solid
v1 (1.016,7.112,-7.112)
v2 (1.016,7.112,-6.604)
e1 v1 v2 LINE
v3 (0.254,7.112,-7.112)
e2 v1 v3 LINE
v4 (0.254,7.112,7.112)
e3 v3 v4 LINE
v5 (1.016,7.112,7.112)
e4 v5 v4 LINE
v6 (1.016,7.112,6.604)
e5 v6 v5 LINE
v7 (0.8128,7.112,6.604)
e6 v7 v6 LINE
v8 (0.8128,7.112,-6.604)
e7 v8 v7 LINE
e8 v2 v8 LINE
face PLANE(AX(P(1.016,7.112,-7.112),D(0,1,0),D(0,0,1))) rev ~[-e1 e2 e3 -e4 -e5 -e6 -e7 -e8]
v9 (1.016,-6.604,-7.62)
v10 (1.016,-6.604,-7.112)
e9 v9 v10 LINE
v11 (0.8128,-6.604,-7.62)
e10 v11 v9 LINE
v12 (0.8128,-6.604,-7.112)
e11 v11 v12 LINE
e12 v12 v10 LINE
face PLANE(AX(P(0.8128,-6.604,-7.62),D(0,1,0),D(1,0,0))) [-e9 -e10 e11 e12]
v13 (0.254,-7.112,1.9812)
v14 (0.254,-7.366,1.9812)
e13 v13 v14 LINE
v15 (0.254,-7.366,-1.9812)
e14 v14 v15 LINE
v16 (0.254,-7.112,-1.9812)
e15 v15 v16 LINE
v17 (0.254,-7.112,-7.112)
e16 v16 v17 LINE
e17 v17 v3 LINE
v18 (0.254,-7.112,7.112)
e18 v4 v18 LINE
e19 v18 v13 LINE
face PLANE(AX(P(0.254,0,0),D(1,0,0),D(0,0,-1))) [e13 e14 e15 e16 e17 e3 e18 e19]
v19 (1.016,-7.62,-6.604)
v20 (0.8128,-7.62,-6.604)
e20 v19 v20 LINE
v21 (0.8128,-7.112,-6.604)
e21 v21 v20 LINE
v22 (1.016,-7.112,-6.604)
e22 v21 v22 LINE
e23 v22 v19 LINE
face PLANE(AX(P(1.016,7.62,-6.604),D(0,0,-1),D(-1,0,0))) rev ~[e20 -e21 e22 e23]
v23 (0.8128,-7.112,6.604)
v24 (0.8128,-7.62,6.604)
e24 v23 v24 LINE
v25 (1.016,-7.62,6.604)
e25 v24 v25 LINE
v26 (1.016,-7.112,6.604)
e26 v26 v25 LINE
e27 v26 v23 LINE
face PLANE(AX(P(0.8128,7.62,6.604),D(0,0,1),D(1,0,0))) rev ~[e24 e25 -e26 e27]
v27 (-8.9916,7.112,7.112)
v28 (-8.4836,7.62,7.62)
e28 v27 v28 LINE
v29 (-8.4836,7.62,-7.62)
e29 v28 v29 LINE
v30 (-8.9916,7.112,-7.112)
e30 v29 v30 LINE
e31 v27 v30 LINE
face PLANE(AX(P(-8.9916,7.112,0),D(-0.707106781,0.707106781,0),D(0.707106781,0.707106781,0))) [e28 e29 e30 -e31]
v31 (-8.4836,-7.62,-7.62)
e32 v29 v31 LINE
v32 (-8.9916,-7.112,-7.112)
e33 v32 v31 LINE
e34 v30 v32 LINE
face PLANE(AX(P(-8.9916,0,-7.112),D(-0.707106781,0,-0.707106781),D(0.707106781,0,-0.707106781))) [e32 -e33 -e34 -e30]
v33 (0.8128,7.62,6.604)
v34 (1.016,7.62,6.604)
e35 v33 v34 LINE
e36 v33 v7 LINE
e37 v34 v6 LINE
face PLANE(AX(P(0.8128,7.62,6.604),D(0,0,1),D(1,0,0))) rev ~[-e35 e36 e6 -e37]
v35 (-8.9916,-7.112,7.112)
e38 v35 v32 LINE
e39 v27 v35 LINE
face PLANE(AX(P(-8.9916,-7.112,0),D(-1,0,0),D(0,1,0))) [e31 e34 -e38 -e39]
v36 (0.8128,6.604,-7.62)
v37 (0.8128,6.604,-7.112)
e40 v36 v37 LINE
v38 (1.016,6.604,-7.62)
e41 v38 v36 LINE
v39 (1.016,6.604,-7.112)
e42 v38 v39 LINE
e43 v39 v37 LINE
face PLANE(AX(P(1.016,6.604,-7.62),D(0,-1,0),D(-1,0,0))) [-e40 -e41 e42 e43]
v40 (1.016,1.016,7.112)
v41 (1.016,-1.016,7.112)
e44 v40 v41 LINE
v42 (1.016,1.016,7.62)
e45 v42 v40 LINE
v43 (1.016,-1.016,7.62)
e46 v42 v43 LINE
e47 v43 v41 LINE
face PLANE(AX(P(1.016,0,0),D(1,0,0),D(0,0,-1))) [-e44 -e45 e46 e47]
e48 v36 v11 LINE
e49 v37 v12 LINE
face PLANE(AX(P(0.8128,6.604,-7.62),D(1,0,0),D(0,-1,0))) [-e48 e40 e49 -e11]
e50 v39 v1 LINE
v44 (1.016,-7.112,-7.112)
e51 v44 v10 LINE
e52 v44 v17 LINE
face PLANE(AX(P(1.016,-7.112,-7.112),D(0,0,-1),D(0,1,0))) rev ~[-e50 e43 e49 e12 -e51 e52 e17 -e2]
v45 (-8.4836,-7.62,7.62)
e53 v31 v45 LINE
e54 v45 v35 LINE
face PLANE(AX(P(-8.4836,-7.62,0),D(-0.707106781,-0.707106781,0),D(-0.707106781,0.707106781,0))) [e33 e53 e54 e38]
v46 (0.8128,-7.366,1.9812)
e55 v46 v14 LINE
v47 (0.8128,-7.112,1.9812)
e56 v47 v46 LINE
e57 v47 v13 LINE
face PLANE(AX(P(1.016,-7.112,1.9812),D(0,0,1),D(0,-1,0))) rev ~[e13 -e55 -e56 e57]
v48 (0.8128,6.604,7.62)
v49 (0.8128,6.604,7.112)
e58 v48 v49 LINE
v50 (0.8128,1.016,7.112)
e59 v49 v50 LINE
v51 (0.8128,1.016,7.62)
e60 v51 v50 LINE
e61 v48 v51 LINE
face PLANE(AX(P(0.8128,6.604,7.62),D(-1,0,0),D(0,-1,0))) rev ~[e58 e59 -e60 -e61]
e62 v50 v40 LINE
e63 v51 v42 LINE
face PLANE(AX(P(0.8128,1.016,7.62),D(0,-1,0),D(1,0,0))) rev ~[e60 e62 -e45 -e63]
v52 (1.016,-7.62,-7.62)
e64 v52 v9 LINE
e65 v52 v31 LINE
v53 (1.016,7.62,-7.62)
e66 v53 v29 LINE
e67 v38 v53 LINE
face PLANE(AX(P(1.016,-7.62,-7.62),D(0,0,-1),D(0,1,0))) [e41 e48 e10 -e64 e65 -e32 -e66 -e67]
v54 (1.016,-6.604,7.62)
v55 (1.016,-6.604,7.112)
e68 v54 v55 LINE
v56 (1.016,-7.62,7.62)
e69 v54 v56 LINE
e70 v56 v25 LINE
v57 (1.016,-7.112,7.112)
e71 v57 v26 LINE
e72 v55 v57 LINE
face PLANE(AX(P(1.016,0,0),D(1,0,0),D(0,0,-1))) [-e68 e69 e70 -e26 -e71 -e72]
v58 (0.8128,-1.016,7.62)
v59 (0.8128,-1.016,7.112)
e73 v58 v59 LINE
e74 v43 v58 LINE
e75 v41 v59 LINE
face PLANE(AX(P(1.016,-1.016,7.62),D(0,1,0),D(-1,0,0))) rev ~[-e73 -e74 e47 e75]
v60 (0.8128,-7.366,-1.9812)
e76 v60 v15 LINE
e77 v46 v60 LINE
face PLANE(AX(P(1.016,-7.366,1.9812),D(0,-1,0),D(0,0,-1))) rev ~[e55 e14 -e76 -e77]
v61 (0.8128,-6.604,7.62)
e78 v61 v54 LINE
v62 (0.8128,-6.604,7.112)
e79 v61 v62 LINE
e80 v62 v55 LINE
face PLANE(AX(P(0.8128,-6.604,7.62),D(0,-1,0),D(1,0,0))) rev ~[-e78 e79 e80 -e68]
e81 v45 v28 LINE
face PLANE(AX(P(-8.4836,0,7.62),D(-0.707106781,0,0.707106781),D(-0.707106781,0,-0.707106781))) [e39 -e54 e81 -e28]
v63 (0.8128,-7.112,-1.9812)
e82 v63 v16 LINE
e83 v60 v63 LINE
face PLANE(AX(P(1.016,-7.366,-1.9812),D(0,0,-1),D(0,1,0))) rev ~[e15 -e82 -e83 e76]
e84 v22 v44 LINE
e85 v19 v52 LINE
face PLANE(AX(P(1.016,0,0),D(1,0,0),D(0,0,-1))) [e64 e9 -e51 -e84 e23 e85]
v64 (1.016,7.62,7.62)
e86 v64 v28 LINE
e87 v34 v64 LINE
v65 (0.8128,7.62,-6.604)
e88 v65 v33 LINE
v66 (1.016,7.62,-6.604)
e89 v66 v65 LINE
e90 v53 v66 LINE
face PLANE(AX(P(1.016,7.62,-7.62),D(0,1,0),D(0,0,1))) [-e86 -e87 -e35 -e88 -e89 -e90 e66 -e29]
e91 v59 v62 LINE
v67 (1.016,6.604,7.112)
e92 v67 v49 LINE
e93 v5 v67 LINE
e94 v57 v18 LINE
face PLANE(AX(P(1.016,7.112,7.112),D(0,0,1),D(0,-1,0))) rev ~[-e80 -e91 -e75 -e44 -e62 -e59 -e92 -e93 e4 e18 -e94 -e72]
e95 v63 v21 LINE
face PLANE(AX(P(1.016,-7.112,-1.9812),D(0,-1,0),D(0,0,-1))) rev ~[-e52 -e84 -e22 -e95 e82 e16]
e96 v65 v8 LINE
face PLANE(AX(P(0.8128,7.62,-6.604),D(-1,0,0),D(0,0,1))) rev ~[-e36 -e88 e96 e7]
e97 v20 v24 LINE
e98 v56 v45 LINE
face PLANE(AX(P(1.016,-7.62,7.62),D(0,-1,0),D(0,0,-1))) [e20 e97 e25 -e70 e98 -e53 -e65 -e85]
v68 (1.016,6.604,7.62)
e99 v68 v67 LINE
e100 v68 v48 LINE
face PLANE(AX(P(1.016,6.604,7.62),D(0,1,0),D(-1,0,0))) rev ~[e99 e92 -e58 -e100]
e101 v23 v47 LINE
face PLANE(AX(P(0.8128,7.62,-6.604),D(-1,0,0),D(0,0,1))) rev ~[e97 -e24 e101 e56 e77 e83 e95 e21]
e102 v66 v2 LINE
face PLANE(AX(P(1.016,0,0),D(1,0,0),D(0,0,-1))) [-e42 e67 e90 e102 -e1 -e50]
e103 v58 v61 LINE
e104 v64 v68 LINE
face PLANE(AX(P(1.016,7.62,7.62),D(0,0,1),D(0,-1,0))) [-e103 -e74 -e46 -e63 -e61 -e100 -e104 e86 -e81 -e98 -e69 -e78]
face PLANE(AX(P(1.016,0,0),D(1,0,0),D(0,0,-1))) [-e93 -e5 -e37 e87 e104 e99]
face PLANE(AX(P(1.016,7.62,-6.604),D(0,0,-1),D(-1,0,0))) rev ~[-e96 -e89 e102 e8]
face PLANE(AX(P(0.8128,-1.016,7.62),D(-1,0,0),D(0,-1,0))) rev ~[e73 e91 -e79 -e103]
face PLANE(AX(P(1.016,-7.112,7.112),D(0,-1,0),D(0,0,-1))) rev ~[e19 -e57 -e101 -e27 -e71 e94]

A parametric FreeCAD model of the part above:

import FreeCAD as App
import Part
import Sketcher

V = App.Vector
Q = App.Units.Quantity


def add_polygon(sketch, points):
    """Adds a closed chain of lines whose ends are joined by coincident constraints."""
    first, n = sketch.GeometryCount, len(points)
    for a, b in zip(points, points[1:] + points[:1]):
        sketch.addGeometry(Part.LineSegment(App.Vector(*a, 0), App.Vector(*b, 0)), False)
    for i in range(n):
        sketch.addConstraint(Sketcher.Constraint("Coincident", first + i, 2, first + (i + 1) % n, 1))

doc = App.newDocument("Part")
body = doc.addObject("PartDesign::Body", "Body")

sketch1 = body.newObject("Sketcher::SketchObject", "Sketch")
sketch1.AttachmentSupport = (doc.getObject("YZ_Plane"), [""])
sketch1.MapMode = "FlatFace"
sketch1.AttachmentOffset = App.Placement(V(0, 0, 0.04 * 25.4), App.Rotation())
add_polygon(sketch1, [(8, 8), (-8, 8), (-8, -8), (8, -8)])
sketch1.addConstraint([
    Sketcher.Constraint("Horizontal", 0),
    Sketcher.Constraint("Vertical", 1),
    Sketcher.Constraint("Horizontal", 2),
    Sketcher.Constraint("Vertical", 3),
    Sketcher.Constraint("Symmetric", 0, 2, 2, 2, -1, 1),
    Sketcher.Constraint("Equal", 2, 1),
    Sketcher.Constraint("DistanceX", 0, 2, 0, 1, Q("0.6 in")),
])
pad1 = body.newObject("PartDesign::Pad", "Pad")
pad1.Profile = sketch1
pad1.Length = Q("0.394 in")
pad1.Reversed = True

sketch2 = body.newObject("Sketcher::SketchObject", "Sketch001")
sketch2.AttachmentSupport = (doc.getObject("YZ_Plane"), [""])
sketch2.MapMode = "FlatFace"
sketch2.AttachmentOffset = App.Placement(V(0, 0, 0.04 * 25.4), App.Rotation())
add_polygon(sketch2, [(7.11, 7.11), (-7.11, 7.11), (-7.11, 1.98), (-7.37, 1.98), (-7.37, -1.98), (-7.11, -1.98), (-7.11, -7.11), (7.11, -7.11)])
sketch2.addConstraint([
    Sketcher.Constraint("Horizontal", 0),
    Sketcher.Constraint("Vertical", 1),
    Sketcher.Constraint("Horizontal", 2),
    Sketcher.Constraint("Vertical", 3),
    Sketcher.Constraint("Horizontal", 4),
    Sketcher.Constraint("Vertical", 5),
    Sketcher.Constraint("Horizontal", 6),
    Sketcher.Constraint("Vertical", 7),
    Sketcher.Constraint("Symmetric", 0, 2, 6, 2, -1, 1),
    Sketcher.Constraint("Symmetric", 1, 2, 4, 2, -1),
    Sketcher.Constraint("Equal", 6, 7),
    Sketcher.Constraint("DistanceX", 0, 2, 0, 1, Q("0.56 in")),
    Sketcher.Constraint("DistanceX", 2, 2, 2, 1, Q("0.01 in")),
    Sketcher.Constraint("DistanceY", 1, 2, 1, 1, Q("0.202 in")),
])
pocket1 = body.newObject("PartDesign::Pocket", "Pocket")
pocket1.Profile = sketch2
pocket1.Length = Q("0.03 in")

sketch3 = body.newObject("Sketcher::SketchObject", "Sketch002")
sketch3.AttachmentSupport = (doc.getObject("XY_Plane"), [""])
sketch3.MapMode = "FlatFace"
add_polygon(sketch3, [(-8.5, 7.6), (-19, 7.6), (-19, -7.6), (-8.5, -7.6), (-9, -7.1), (-9, 7.1)])
sketch3.addConstraint([
    Sketcher.Constraint("Horizontal", 0),
    Sketcher.Constraint("Vertical", 1),
    Sketcher.Constraint("Horizontal", 2),
    Sketcher.Constraint("Vertical", 4),
    Sketcher.Constraint("Symmetric", 2, 2, 5, 2, -1),
    Sketcher.Constraint("Perpendicular", 3, 5),
    Sketcher.Constraint("Equal", 3, 5),
    Sketcher.Constraint("DistanceY", 1, 2, 1, 1, Q("0.6 in")),
    Sketcher.Constraint("DistanceY", 4, 1, 4, 2, Q("0.56 in")),
    Sketcher.Constraint("DistanceX", 0, 2, 0, 1, Q("0.414 in")),
    Sketcher.Constraint("DistanceX", 0, 2, -1, 1, Q("0.748 in")),
])
pocket2 = body.newObject("PartDesign::Pocket", "Pocket001")
pocket2.Profile = sketch3
pocket2.Length = Q("0.6 in")
pocket2.Midplane = True

sketch4 = body.newObject("Sketcher::SketchObject", "Sketch003")
sketch4.AttachmentSupport = (doc.getObject("XZ_Plane"), [""])
sketch4.MapMode = "FlatFace"
add_polygon(sketch4, [(-8.5, -7.6), (-19, -7.6), (-19, 7.6), (-8.5, 7.6), (-9, 7.1), (-9, -7.1)])
sketch4.addConstraint([
    Sketcher.Constraint("Horizontal", 0),
    Sketcher.Constraint("Vertical", 1),
    Sketcher.Constraint("Horizontal", 2),
    Sketcher.Constraint("Vertical", 4),
    Sketcher.Constraint("Symmetric", 2, 2, 5, 2, -1),
    Sketcher.Constraint("Perpendicular", 3, 5),
    Sketcher.Constraint("Equal", 3, 5),
    Sketcher.Constraint("DistanceY", 1, 1, 1, 2, Q("0.6 in")),
    Sketcher.Constraint("DistanceY", 4, 2, 4, 1, Q("0.56 in")),
    Sketcher.Constraint("DistanceX", 0, 2, 0, 1, Q("0.414 in")),
    Sketcher.Constraint("DistanceX", 0, 2, -1, 1, Q("0.748 in")),
])
pocket3 = body.newObject("PartDesign::Pocket", "Pocket002")
pocket3.Profile = sketch4
pocket3.Length = Q("0.6 in")
pocket3.Midplane = True

sketch5 = body.newObject("Sketcher::SketchObject", "Sketch004")
sketch5.AttachmentSupport = (doc.getObject("XZ_Plane"), [""])
sketch5.MapMode = "FlatFace"
sketch5.AttachmentOffset = App.Placement(V(0, 0, -0.3 * 25.4), App.Rotation())
add_polygon(sketch5, [(1.02, -6.6), (0.81, -6.6), (0.81, 6.6), (1.02, 6.6)])
sketch5.addConstraint([
    Sketcher.Constraint("Horizontal", 0),
    Sketcher.Constraint("Vertical", 1),
    Sketcher.Constraint("Horizontal", 2),
    Sketcher.Constraint("Vertical", 3),
    Sketcher.Constraint("DistanceY", 1, 1, 1, 2, Q("0.52 in")),
    Sketcher.Constraint("DistanceX", 0, 2, 0, 1, Q("0.008 in")),
    Sketcher.Constraint("DistanceY", 0, 2, -1, 1, Q("0.26 in")),
    Sketcher.Constraint("DistanceX", -1, 1, 2, 2, Q("0.04 in")),
])
pocket4 = body.newObject("PartDesign::Pocket", "Pocket003")
pocket4.Profile = sketch5
pocket4.Length = Q("0.6 in")
pocket4.Reversed = True

sketch6 = body.newObject("Sketcher::SketchObject", "Sketch005")
sketch6.AttachmentSupport = (doc.getObject("XY_Plane"), [""])
sketch6.MapMode = "FlatFace"
sketch6.AttachmentOffset = App.Placement(V(0, 0, -0.3 * 25.4), App.Rotation())
add_polygon(sketch6, [(1.02, 6.6), (0.81, 6.6), (0.81, -6.6), (1.02, -6.6)])
sketch6.addConstraint([
    Sketcher.Constraint("Horizontal", 0),
    Sketcher.Constraint("Vertical", 1),
    Sketcher.Constraint("Horizontal", 2),
    Sketcher.Constraint("Vertical", 3),
    Sketcher.Constraint("DistanceY", 1, 2, 1, 1, Q("0.52 in")),
    Sketcher.Constraint("DistanceX", 0, 2, 0, 1, Q("0.008 in")),
    Sketcher.Constraint("DistanceY", -1, 1, 0, 2, Q("0.26 in")),
    Sketcher.Constraint("DistanceX", -1, 1, 2, 2, Q("0.04 in")),
])
pocket5 = body.newObject("PartDesign::Pocket", "Pocket004")
pocket5.Profile = sketch6
pocket5.Length = Q("0.02 in")
pocket5.Reversed = True

sketch7 = body.newObject("Sketcher::SketchObject", "Sketch006")
sketch7.AttachmentSupport = (doc.getObject("XY_Plane"), [""])
sketch7.MapMode = "FlatFace"
sketch7.AttachmentOffset = App.Placement(V(0, 0, 0.3 * 25.4), App.Rotation())
add_polygon(sketch7, [(1.02, 6.6), (0.81, 6.6), (0.81, 1.02), (1.02, 1.02)])
sketch7.addConstraint([
    Sketcher.Constraint("Horizontal", 0),
    Sketcher.Constraint("Vertical", 1),
    Sketcher.Constraint("Horizontal", 2),
    Sketcher.Constraint("Vertical", 3),
    Sketcher.Constraint("DistanceY", 1, 2, 1, 1, Q("0.22 in")),
    Sketcher.Constraint("DistanceX", 0, 2, 0, 1, Q("0.008 in")),
    Sketcher.Constraint("DistanceY", -1, 1, 0, 2, Q("0.26 in")),
    Sketcher.Constraint("DistanceX", -1, 1, 2, 2, Q("0.04 in")),
])
pocket6 = body.newObject("PartDesign::Pocket", "Pocket005")
pocket6.Profile = sketch7
pocket6.Length = Q("0.02 in")

sketch8 = body.newObject("Sketcher::SketchObject", "Sketch007")
sketch8.AttachmentSupport = (doc.getObject("XY_Plane"), [""])
sketch8.MapMode = "FlatFace"
sketch8.AttachmentOffset = App.Placement(V(0, 0, 0.3 * 25.4), App.Rotation())
add_polygon(sketch8, [(1.02, -1.02), (0.81, -1.02), (0.81, -6.6), (1.02, -6.6)])
sketch8.addConstraint([
    Sketcher.Constraint("Horizontal", 0),
    Sketcher.Constraint("Vertical", 1),
    Sketcher.Constraint("Horizontal", 2),
    Sketcher.Constraint("Vertical", 3),
    Sketcher.Constraint("DistanceY", 1, 2, 1, 1, Q("0.22 in")),
    Sketcher.Constraint("DistanceX", 0, 2, 0, 1, Q("0.008 in")),
    Sketcher.Constraint("DistanceY", 0, 2, -1, 1, Q("0.04 in")),
    Sketcher.Constraint("DistanceX", -1, 1, 2, 2, Q("0.04 in")),
])
pocket7 = body.newObject("PartDesign::Pocket", "Pocket006")
pocket7.Profile = sketch8
pocket7.Length = Q("0.02 in")

doc.recompute()
